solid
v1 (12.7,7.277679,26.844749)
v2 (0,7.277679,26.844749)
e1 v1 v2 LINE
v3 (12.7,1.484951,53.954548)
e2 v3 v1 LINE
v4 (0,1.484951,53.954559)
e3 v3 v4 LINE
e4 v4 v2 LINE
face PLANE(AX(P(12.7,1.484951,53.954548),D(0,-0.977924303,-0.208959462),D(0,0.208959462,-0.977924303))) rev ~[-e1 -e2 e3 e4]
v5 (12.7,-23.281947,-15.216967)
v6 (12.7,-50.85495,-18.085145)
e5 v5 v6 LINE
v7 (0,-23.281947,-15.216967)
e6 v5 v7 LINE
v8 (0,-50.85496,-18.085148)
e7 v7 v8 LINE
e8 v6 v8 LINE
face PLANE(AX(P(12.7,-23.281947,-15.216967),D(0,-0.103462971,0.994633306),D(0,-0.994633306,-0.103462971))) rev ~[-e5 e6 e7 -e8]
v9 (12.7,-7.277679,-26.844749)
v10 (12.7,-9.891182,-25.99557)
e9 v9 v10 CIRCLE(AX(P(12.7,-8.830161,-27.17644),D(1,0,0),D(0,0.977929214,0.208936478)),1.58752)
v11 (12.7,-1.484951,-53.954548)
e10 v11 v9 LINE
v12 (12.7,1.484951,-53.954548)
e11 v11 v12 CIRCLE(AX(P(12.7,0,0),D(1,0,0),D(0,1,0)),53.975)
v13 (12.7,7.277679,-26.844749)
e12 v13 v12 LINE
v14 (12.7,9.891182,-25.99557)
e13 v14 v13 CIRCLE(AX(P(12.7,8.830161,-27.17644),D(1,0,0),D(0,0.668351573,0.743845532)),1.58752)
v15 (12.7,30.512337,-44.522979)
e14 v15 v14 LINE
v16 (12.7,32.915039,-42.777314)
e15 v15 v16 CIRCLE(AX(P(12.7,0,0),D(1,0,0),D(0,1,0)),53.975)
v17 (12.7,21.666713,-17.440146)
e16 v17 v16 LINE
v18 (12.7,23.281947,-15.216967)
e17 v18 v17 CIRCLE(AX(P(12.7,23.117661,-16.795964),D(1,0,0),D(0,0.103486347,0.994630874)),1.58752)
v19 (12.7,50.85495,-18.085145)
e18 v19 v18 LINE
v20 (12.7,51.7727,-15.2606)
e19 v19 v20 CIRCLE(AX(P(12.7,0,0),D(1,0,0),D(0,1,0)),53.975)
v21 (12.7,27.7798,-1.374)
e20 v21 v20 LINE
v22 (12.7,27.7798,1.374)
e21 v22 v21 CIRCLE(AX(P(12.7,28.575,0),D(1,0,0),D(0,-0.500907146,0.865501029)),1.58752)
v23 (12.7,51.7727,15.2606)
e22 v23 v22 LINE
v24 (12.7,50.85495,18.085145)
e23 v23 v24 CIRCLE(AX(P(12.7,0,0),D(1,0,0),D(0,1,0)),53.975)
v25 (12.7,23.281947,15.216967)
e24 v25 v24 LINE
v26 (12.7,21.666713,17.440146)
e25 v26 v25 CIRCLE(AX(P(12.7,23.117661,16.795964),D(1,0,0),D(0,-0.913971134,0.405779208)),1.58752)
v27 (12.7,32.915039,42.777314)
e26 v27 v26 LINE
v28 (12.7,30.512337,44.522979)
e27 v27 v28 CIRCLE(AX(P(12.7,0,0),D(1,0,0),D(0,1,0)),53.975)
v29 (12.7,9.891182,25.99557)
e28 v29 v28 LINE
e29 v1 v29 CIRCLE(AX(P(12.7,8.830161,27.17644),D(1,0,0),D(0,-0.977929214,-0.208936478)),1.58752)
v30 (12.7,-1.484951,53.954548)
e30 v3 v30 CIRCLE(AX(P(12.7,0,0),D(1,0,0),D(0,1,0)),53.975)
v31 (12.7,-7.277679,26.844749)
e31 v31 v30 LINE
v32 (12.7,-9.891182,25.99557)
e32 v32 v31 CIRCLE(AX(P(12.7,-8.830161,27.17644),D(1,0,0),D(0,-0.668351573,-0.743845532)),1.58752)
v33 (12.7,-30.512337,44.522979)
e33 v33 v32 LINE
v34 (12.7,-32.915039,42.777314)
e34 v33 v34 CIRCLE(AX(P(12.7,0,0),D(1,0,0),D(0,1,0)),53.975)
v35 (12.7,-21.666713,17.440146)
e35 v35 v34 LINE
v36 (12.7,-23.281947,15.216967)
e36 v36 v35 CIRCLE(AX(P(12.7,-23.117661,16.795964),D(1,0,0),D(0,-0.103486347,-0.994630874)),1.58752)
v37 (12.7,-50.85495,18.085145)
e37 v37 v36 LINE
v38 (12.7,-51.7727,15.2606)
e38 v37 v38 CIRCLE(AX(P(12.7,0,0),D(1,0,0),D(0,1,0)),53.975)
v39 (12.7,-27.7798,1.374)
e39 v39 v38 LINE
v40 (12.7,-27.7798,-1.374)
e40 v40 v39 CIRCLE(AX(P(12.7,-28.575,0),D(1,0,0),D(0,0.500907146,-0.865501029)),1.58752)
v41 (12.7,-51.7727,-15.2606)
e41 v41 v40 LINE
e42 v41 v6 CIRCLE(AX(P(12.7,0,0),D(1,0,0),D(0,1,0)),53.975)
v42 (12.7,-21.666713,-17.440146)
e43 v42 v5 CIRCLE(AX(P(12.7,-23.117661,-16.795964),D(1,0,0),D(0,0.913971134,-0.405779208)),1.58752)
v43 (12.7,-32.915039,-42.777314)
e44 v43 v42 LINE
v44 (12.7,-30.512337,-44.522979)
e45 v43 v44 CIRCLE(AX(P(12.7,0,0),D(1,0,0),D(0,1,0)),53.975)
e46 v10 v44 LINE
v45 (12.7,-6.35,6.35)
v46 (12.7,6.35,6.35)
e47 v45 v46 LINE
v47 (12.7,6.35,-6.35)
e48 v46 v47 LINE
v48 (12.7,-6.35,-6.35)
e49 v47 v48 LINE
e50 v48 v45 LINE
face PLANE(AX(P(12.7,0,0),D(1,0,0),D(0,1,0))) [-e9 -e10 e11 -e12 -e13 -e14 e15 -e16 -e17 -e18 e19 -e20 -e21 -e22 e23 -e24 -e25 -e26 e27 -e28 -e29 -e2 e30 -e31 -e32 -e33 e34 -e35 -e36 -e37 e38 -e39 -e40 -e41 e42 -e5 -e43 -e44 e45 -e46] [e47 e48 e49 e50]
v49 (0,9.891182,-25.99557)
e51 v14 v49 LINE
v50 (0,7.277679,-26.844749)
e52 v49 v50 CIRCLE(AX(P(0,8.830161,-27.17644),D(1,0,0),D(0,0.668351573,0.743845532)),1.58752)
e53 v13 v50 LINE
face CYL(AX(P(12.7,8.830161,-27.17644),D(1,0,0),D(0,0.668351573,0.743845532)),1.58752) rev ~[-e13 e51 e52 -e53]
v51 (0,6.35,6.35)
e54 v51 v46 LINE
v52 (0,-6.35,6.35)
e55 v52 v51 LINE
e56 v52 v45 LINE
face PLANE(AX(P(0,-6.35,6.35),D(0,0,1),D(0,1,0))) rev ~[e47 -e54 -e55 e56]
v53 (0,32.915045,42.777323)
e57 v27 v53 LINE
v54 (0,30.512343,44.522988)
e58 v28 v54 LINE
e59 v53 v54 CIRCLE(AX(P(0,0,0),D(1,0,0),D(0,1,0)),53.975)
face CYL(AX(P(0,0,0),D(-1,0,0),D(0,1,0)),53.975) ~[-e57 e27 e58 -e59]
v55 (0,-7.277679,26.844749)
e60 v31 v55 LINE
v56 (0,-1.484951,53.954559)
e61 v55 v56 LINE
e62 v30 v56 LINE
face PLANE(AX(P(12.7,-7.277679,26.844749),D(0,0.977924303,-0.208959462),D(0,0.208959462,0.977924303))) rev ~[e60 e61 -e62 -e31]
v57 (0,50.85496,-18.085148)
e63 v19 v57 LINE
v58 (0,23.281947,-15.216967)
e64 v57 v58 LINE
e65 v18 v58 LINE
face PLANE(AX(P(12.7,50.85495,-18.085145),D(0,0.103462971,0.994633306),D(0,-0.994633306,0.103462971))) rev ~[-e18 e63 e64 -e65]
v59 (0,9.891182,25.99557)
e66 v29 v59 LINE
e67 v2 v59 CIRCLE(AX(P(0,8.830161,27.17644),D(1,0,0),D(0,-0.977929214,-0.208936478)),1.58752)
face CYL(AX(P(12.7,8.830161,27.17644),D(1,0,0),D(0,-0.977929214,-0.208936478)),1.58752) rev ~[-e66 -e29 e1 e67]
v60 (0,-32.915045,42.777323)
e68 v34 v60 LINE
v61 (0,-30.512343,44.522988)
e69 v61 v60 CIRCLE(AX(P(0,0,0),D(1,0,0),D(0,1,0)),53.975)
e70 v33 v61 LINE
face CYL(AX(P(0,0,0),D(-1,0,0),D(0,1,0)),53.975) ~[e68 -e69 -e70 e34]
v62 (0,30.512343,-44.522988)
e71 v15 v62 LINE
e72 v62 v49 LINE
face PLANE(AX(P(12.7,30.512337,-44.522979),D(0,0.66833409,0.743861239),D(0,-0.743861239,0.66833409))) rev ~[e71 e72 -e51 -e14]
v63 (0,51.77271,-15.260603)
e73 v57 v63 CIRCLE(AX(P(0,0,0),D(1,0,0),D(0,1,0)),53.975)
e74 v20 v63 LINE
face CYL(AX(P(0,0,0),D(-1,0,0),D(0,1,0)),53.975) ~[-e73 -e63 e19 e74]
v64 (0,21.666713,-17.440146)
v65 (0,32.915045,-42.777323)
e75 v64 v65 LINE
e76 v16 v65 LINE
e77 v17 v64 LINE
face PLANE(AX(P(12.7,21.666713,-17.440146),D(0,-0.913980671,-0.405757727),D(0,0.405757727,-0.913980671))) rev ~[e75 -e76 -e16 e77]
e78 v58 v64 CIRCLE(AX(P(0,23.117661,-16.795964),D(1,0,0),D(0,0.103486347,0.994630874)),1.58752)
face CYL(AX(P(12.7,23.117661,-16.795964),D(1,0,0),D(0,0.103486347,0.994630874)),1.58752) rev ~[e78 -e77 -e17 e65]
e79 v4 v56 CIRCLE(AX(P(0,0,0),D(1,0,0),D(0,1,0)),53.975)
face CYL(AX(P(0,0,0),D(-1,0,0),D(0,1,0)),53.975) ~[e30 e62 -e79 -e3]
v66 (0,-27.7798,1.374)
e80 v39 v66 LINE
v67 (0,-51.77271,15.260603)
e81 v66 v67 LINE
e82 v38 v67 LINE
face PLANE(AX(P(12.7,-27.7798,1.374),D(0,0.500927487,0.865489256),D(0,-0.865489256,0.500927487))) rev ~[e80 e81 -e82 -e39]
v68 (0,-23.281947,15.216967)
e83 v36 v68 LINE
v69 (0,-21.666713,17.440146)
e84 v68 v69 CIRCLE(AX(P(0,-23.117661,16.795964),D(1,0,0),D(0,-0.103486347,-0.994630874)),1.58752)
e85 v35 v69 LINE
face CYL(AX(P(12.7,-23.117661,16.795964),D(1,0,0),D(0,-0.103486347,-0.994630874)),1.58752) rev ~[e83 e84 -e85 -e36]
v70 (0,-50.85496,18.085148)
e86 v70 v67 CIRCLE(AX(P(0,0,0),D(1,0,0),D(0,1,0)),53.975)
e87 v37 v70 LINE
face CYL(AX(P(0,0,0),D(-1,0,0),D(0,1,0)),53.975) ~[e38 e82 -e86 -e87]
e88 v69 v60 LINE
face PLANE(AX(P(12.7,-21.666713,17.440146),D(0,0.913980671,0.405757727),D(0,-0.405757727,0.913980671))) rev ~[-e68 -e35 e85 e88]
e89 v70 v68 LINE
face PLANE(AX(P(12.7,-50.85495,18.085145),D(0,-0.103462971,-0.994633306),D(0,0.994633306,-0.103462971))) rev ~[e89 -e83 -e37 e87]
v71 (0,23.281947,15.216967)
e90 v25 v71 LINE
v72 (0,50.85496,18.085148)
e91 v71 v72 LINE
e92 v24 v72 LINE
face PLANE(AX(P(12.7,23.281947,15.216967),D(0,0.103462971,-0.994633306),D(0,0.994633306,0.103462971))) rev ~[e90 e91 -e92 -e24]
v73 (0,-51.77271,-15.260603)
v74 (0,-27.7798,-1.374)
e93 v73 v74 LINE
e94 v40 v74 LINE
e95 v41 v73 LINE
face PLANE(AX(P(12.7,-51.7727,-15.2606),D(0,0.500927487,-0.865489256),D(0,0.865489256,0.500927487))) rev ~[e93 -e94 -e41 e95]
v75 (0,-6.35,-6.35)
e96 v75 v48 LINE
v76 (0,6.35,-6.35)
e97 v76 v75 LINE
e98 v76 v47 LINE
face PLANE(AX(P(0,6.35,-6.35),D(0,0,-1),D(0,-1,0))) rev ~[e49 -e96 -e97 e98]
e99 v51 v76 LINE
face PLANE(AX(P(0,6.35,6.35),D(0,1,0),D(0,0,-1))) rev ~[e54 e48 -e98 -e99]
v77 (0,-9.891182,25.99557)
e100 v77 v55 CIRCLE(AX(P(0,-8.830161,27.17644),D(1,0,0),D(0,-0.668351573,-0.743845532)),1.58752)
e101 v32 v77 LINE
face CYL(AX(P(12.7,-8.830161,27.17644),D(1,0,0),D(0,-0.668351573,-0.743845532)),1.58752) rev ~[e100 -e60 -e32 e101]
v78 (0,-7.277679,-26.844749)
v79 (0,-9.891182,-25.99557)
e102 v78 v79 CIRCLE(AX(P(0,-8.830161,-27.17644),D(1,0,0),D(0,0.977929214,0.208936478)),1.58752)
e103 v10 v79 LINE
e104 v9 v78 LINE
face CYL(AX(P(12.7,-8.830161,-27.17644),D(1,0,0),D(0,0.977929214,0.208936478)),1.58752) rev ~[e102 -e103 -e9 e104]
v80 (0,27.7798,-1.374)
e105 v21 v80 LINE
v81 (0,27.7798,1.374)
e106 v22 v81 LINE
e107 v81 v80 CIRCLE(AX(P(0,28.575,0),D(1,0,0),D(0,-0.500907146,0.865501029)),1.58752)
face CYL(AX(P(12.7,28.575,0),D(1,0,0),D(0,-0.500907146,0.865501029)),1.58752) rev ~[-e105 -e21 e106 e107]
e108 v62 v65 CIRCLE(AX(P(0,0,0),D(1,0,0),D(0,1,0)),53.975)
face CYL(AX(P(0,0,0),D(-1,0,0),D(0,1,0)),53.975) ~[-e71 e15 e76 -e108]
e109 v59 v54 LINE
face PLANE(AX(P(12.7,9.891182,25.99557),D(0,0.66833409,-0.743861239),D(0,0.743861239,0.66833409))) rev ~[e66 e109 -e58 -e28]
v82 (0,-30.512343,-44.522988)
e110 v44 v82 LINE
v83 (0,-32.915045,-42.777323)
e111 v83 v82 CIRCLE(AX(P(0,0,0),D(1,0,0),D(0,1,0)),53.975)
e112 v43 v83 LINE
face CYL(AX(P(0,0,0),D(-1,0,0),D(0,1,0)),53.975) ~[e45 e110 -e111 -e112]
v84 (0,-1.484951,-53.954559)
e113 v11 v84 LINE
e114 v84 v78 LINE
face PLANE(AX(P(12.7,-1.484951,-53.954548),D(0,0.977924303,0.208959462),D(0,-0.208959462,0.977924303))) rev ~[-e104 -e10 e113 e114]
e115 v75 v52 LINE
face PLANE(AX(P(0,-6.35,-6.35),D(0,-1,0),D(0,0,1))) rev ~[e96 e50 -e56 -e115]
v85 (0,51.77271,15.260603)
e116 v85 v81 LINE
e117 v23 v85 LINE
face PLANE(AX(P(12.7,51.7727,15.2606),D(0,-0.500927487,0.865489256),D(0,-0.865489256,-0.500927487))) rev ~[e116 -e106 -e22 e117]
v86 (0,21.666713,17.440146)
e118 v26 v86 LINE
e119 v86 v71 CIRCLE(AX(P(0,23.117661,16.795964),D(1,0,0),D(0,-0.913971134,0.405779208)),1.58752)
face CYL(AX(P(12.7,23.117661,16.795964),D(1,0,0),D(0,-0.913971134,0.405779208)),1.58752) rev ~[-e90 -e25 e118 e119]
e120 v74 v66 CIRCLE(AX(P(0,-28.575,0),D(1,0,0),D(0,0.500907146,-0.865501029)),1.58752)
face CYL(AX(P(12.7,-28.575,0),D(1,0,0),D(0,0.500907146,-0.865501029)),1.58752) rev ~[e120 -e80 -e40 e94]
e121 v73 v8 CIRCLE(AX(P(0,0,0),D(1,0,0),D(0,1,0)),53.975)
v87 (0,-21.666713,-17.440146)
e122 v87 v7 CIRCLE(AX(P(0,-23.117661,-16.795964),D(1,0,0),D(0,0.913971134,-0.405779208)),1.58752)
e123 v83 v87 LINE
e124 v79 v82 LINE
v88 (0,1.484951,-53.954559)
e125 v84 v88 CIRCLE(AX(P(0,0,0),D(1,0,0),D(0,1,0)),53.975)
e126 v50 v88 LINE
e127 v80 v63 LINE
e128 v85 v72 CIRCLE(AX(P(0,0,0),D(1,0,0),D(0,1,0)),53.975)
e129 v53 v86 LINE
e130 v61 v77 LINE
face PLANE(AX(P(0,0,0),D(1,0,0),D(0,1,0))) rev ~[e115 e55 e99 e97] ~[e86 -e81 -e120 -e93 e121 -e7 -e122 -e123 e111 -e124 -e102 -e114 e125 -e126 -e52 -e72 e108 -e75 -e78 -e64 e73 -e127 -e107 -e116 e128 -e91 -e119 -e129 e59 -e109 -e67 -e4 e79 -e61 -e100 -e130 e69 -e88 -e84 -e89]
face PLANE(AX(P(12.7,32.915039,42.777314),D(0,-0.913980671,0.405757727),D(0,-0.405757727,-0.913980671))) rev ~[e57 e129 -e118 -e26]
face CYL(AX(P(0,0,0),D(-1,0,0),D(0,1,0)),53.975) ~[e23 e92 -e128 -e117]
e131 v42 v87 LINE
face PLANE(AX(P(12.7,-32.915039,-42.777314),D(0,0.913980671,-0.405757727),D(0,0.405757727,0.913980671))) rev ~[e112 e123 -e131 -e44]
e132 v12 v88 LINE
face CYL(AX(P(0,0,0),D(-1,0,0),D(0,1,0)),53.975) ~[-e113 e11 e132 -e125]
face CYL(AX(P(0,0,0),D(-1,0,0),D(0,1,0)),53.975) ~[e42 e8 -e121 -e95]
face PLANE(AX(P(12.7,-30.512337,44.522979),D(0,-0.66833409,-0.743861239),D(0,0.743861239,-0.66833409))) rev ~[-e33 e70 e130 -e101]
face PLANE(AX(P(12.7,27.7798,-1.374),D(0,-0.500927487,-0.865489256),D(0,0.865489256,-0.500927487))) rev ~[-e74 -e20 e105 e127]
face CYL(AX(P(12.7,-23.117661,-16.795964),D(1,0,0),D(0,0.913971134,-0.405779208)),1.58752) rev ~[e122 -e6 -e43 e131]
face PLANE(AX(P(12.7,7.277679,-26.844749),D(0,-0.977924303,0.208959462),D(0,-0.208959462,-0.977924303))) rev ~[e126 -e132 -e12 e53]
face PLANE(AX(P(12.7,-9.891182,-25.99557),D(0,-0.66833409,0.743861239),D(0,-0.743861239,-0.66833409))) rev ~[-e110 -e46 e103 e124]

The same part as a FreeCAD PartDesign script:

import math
import FreeCAD as App
import Part
import Sketcher

V = App.Vector
Q = App.Units.Quantity

doc = App.newDocument("Part")
body = doc.addObject("PartDesign::Body", "Body")

sketch1 = body.newObject("Sketcher::SketchObject", "Sketch")
sketch1.AttachmentSupport = (doc.getObject("YZ_Plane"), [""])
sketch1.MapMode = "FlatFace"
sketch1.addGeometry(Part.Circle(V(0, 0, 0), V(0, 0, 1), 54), False)
sketch1.addGeometry(Part.LineSegment(V(-6, -6, 0), V(-6, 6, 0)), False)
sketch1.addGeometry(Part.LineSegment(V(-6, 6, 0), V(6, 6, 0)), False)
sketch1.addGeometry(Part.LineSegment(V(6, 6, 0), V(6, -6, 0)), False)
sketch1.addGeometry(Part.LineSegment(V(6, -6, 0), V(-6, -6, 0)), False)
sketch1.addConstraint(Sketcher.Constraint("Coincident", 1, 2, 2, 1))
sketch1.addConstraint(Sketcher.Constraint("Coincident", 2, 2, 3, 1))
sketch1.addConstraint(Sketcher.Constraint("Coincident", 3, 2, 4, 1))
sketch1.addConstraint(Sketcher.Constraint("Coincident", 4, 2, 1, 1))
sketch1.addConstraint(Sketcher.Constraint("Vertical", 1))
sketch1.addConstraint(Sketcher.Constraint("Horizontal", 2))
sketch1.addConstraint(Sketcher.Constraint("Vertical", 3))
sketch1.addConstraint(Sketcher.Constraint("Horizontal", 4))
sketch1.addConstraint(Sketcher.Constraint("Coincident", 0, 3, -1, 1))
sketch1.addConstraint(Sketcher.Constraint("Symmetric", 1, 2, 3, 2, -1, 1))
sketch1.addConstraint(Sketcher.Constraint("Equal", 4, 1))
sketch1.addConstraint(Sketcher.Constraint("Diameter", 0, Q("4.25 in")))
sketch1.addConstraint(Sketcher.Constraint("DistanceX", 2, 1, 2, 2, Q("0.5 in")))
pad1 = body.newObject("PartDesign::Pad", "Pad")
pad1.Profile = sketch1
pad1.Length = Q("0.5 in")

sketch2 = body.newObject("Sketcher::SketchObject", "Sketch001")
sketch2.AttachmentSupport = (doc.getObject("YZ_Plane"), [""])
sketch2.MapMode = "FlatFace"
sketch2.AttachmentOffset = App.Placement(V(0, 0, 0.5 * 25.4), App.Rotation())
sketch2.addGeometry(Part.LineSegment(V(27.8, -1.4, 0), V(51.8, -15.3, 0)), False)
sketch2.addGeometry(Part.ArcOfCircle(Part.Circle(V(0, 0, 0), V(0, 0, 1), 54), math.radians(-16), math.radians(16)), False)
sketch2.addGeometry(Part.LineSegment(V(51.8, 15.3, 0), V(27.8, 1.4, 0)), False)
sketch2.addGeometry(Part.ArcOfCircle(Part.Circle(V(28.6, 0, 0), V(0, 0, 1), 1.6), math.radians(120), math.radians(240)), False)
sketch2.addConstraint(Sketcher.Constraint("Coincident", 0, 2, 1, 1))
sketch2.addConstraint(Sketcher.Constraint("Coincident", 1, 2, 2, 1))
sketch2.addConstraint(Sketcher.Constraint("Tangent", 2, 2, 3, 1))
sketch2.addConstraint(Sketcher.Constraint("Tangent", 3, 2, 0, 1))
sketch2.addConstraint(Sketcher.Constraint("Coincident", 1, 3, -1, 1))
sketch2.addConstraint(Sketcher.Constraint("Symmetric", 2, 2, 3, 2, -1))
sketch2.addConstraint(Sketcher.Constraint("Radius", 3, Q("0.0625 in")))
sketch2.addConstraint(Sketcher.Constraint("Radius", 1, Q("2.125 in")))
sketch2.addConstraint(Sketcher.Constraint("DistanceX", -1, 1, 3, 3, Q("1.125 in")))
sketch2.addConstraint(Sketcher.Constraint("Distance", 0, Q("1.0914 in")))
pocket1 = body.newObject("PartDesign::Pocket", "Pocket")
pocket1.Profile = sketch2
pocket1.Type = "ThroughAll"
doc.recompute()

polarpattern = body.newObject("PartDesign::PolarPattern", "PolarPattern")
polarpattern.Originals = [pocket1]
polarpattern.Axis = (doc.getObject("X_Axis"), [""])
polarpattern.Angle = 360
polarpattern.Occurrences = 10
body.Tip = polarpattern

doc.recompute()
